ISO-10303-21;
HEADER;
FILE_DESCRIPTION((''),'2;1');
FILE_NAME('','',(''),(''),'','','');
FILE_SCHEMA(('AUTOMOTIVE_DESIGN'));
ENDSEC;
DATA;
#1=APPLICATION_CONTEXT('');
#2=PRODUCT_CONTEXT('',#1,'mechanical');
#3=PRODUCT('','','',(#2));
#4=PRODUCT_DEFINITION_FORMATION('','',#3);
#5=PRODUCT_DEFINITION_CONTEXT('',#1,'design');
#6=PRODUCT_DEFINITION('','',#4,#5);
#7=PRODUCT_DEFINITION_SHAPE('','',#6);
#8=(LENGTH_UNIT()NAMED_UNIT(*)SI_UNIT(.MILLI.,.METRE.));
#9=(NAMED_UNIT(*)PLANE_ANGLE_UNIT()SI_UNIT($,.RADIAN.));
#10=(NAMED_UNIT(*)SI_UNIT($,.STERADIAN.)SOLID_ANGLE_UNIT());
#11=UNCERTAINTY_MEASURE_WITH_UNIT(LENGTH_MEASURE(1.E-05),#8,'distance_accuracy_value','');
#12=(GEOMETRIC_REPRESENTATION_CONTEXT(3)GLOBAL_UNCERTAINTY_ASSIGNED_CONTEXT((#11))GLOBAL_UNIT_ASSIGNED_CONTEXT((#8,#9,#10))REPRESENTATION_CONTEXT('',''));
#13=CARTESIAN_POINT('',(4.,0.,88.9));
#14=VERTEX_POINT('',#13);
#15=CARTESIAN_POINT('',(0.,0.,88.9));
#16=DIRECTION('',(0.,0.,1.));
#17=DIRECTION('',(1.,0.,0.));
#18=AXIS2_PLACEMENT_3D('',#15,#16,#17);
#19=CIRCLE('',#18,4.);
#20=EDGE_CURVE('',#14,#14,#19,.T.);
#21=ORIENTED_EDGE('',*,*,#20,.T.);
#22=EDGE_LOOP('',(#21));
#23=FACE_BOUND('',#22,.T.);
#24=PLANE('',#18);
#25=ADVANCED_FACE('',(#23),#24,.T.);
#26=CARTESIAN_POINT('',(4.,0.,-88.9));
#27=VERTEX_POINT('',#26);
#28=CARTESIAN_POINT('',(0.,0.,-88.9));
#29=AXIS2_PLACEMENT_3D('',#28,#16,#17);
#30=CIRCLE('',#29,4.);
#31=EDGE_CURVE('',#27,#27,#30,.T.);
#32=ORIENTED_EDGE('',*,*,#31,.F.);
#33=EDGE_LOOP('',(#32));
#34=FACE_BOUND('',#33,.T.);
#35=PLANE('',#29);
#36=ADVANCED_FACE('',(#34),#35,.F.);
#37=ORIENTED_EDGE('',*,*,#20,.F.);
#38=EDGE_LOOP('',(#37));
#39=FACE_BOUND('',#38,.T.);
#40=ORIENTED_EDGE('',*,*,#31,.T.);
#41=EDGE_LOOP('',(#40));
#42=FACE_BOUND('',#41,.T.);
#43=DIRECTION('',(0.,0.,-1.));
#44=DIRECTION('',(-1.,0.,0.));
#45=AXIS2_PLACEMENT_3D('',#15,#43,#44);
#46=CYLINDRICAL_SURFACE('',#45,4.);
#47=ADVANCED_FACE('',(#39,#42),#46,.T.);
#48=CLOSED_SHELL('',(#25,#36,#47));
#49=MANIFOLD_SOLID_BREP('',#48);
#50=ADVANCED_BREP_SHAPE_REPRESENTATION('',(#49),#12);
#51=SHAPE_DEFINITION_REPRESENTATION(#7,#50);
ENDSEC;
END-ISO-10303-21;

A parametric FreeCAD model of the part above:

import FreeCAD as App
import Part
import Sketcher

V = App.Vector

doc = App.newDocument("Part")
params = doc.addObject("Spreadsheet::Sheet", "Params")
for row, (alias, value) in enumerate([
    ("sketch1_diameter", "8 mm"),
    ("pad1_length", "177.8 mm"),
], start=1):
    params.set(f"A{row}", alias)
    params.set(f"B{row}", "=" + value)
    params.setAlias(f"B{row}", alias)

body = doc.addObject("PartDesign::Body", "Body")

# Sketch on XY plane
sketch1 = doc.addObject("Sketcher::SketchObject", "Sketch")
body.addObject(sketch1)
sketch1.AttachmentSupport = (doc.XY_Plane, [""])
sketch1.MapMode = "FlatFace"
sketch1.addGeometry(Part.Circle(V(0, 0, 0), V(0, 0, 1), 4), False)
sketch1.addConstraint([
    Sketcher.Constraint("Coincident", 0, 3, -1, 1),
    Sketcher.Constraint("Diameter", 0, 8.0),
])
sketch1.setExpression("Constraints[1]", "Params.sketch1_diameter")
pad1 = doc.addObject("PartDesign::Pad", "Pad")
body.addObject(pad1)
pad1.Profile = sketch1
pad1.setExpression("Length", "Params.pad1_length")
pad1.Midplane = True

doc.recompute()
